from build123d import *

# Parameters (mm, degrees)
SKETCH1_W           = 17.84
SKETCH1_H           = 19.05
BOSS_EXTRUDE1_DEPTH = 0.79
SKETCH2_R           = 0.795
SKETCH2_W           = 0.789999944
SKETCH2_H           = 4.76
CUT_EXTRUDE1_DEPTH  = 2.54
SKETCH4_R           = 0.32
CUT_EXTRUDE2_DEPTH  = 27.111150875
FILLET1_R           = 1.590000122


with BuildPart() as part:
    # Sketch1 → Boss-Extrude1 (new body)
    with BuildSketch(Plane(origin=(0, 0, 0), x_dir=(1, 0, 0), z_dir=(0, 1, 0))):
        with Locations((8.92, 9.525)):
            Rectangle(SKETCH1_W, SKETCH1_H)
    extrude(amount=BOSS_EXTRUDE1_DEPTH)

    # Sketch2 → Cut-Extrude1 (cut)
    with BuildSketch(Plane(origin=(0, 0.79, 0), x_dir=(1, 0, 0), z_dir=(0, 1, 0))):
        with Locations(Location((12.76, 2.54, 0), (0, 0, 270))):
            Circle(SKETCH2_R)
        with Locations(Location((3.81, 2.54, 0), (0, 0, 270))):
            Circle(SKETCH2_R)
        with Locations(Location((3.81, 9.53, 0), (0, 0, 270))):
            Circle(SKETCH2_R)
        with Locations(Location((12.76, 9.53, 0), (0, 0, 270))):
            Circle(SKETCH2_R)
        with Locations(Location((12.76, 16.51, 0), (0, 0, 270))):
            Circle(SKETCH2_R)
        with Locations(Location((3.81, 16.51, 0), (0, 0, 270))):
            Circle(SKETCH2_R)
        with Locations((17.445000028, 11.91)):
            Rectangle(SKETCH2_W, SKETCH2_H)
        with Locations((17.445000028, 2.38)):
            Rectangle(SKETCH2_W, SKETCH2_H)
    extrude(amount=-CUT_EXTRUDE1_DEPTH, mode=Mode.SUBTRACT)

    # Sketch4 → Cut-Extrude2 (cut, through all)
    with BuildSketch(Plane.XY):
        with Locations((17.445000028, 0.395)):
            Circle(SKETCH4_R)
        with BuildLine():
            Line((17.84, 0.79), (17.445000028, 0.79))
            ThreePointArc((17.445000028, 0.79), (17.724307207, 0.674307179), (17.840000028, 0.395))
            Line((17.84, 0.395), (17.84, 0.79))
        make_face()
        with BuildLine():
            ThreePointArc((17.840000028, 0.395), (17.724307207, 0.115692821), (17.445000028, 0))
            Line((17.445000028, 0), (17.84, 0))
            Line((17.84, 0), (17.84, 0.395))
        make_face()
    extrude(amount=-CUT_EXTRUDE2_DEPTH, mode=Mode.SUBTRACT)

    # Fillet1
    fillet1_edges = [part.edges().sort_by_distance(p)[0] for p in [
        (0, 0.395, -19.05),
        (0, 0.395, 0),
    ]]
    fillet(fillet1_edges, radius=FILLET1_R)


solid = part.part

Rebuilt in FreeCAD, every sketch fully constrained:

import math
import FreeCAD as App
import Part
import Sketcher
from FreeCAD import Vector
Q = App.Units.Quantity


def edges_at(feature, points):
    """Names of the edges that pass closest to the given points."""
    edges = feature.Shape.Edges
    near = lambda p: min(range(len(edges)), key=lambda i: edges[i].distToShape(Part.Vertex(*p))[0])
    return sorted({f"Edge{near(p) + 1}" for p in points})

doc = App.newDocument("Part")
body = doc.addObject("PartDesign::Body", "Body")

sketch1 = body.newObject("Sketcher::SketchObject", "Sketch")
sketch1.AttachmentSupport = (doc.getObject("XZ_Plane"), [""])
sketch1.MapMode = "FlatFace"
sketch1.addGeometry(Part.LineSegment(Vector(0, -19, 0), Vector(0, 0, 0)), False)
sketch1.addGeometry(Part.LineSegment(Vector(0, 0, 0), Vector(18, 0, 0)), False)
sketch1.addGeometry(Part.LineSegment(Vector(18, 0, 0), Vector(18, -19, 0)), False)
sketch1.addGeometry(Part.LineSegment(Vector(18, -19, 0), Vector(0, -19, 0)), False)
sketch1.addConstraint(Sketcher.Constraint("Coincident", 0, 2, 1, 1))
sketch1.addConstraint(Sketcher.Constraint("Coincident", 1, 2, 2, 1))
sketch1.addConstraint(Sketcher.Constraint("Coincident", 2, 2, 3, 1))
sketch1.addConstraint(Sketcher.Constraint("Coincident", 3, 2, 0, 1))
sketch1.addConstraint(Sketcher.Constraint("Vertical", 0))
sketch1.addConstraint(Sketcher.Constraint("Horizontal", 1))
sketch1.addConstraint(Sketcher.Constraint("Vertical", 2))
sketch1.addConstraint(Sketcher.Constraint("Horizontal", 3))
sketch1.addConstraint(Sketcher.Constraint("Coincident", 0, 2, -1, 1))
sketch1.addConstraint(Sketcher.Constraint("DistanceY", 0, 1, 0, 2, Q("0.75 in")))
sketch1.addConstraint(Sketcher.Constraint("DistanceX", 1, 1, 1, 2, Q("17.84 mm")))
pad1 = body.newObject("PartDesign::Pad", "Pad")
pad1.Profile = sketch1
pad1.Length = 0.79
pad1.Reversed = True

sketch2 = body.newObject("Sketcher::SketchObject", "Sketch001")
sketch2.AttachmentSupport = (doc.getObject("XZ_Plane"), [""])
sketch2.MapMode = "FlatFace"
sketch2.AttachmentOffset = App.Placement(Vector(0, 0, -0.79), App.Rotation())
sketch2.addGeometry(Part.Circle(Vector(12.8, -2.5, 0), Vector(0, 0, 1), 0.8), False)
sketch2.addGeometry(Part.Circle(Vector(3.8, -2.5, 0), Vector(0, 0, 1), 0.8), False)
sketch2.addGeometry(Part.Circle(Vector(3.8, -9.5, 0), Vector(0, 0, 1), 0.8), False)
sketch2.addGeometry(Part.Circle(Vector(12.8, -9.5, 0), Vector(0, 0, 1), 0.8), False)
sketch2.addGeometry(Part.Circle(Vector(12.8, -16.5, 0), Vector(0, 0, 1), 0.8), False)
sketch2.addGeometry(Part.Circle(Vector(3.8, -16.5, 0), Vector(0, 0, 1), 0.8), False)
sketch2.addGeometry(Part.LineSegment(Vector(17.1, -14.3, 0), Vector(17.1, -9.5, 0)), False)
sketch2.addGeometry(Part.LineSegment(Vector(17.1, -9.5, 0), Vector(17.8, -9.5, 0)), False)
sketch2.addGeometry(Part.LineSegment(Vector(17.8, -9.5, 0), Vector(17.8, -14.3, 0)), False)
sketch2.addGeometry(Part.LineSegment(Vector(17.8, -14.3, 0), Vector(17.1, -14.3, 0)), False)
sketch2.addGeometry(Part.LineSegment(Vector(17.1, -4.8, 0), Vector(17.1, 0, 0)), False)
sketch2.addGeometry(Part.LineSegment(Vector(17.1, 0, 0), Vector(17.8, 0, 0)), False)
sketch2.addGeometry(Part.LineSegment(Vector(17.8, 0, 0), Vector(17.8, -4.8, 0)), False)
sketch2.addGeometry(Part.LineSegment(Vector(17.8, -4.8, 0), Vector(17.1, -4.8, 0)), False)
sketch2.addConstraint(Sketcher.Constraint("Coincident", 6, 2, 7, 1))
sketch2.addConstraint(Sketcher.Constraint("Coincident", 7, 2, 8, 1))
sketch2.addConstraint(Sketcher.Constraint("Coincident", 8, 2, 9, 1))
sketch2.addConstraint(Sketcher.Constraint("Coincident", 9, 2, 6, 1))
sketch2.addConstraint(Sketcher.Constraint("Coincident", 10, 2, 11, 1))
sketch2.addConstraint(Sketcher.Constraint("Coincident", 11, 2, 12, 1))
sketch2.addConstraint(Sketcher.Constraint("Coincident", 12, 2, 13, 1))
sketch2.addConstraint(Sketcher.Constraint("Coincident", 13, 2, 10, 1))
sketch2.addConstraint(Sketcher.Constraint("Vertical", 6))
sketch2.addConstraint(Sketcher.Constraint("Horizontal", 7))
sketch2.addConstraint(Sketcher.Constraint("Vertical", 8))
sketch2.addConstraint(Sketcher.Constraint("Horizontal", 9))
sketch2.addConstraint(Sketcher.Constraint("Vertical", 10))
sketch2.addConstraint(Sketcher.Constraint("Horizontal", 11))
sketch2.addConstraint(Sketcher.Constraint("Vertical", 12))
sketch2.addConstraint(Sketcher.Constraint("Horizontal", 13))
sketch2.addConstraint(Sketcher.Constraint("Equal", 0, 1))
sketch2.addConstraint(Sketcher.Constraint("Equal", 1, 2))
sketch2.addConstraint(Sketcher.Constraint("Equal", 2, 3))
sketch2.addConstraint(Sketcher.Constraint("Equal", 3, 4))
sketch2.addConstraint(Sketcher.Constraint("Equal", 4, 5))
sketch2.addConstraint(Sketcher.Constraint("PointOnObject", 10, 2, -1))
sketch2.addConstraint(Sketcher.Constraint("Horizontal", 0, 3, 1, 3))
sketch2.addConstraint(Sketcher.Constraint("Horizontal", 2, 3, 3, 3))
sketch2.addConstraint(Sketcher.Constraint("Horizontal", 4, 3, 5, 3))
sketch2.addConstraint(Sketcher.Constraint("Horizontal", 3, 3, 6, 2))
sketch2.addConstraint(Sketcher.Constraint("Vertical", 1, 3, 2, 3))
sketch2.addConstraint(Sketcher.Constraint("Vertical", 0, 3, 3, 3))
sketch2.addConstraint(Sketcher.Constraint("Vertical", 3, 3, 4, 3))
sketch2.addConstraint(Sketcher.Constraint("Vertical", 2, 3, 5, 3))
sketch2.addConstraint(Sketcher.Constraint("Vertical", 9, 2, 10, 2))
sketch2.addConstraint(Sketcher.Constraint("Vertical", 8, 2, 11, 2))
sketch2.addConstraint(Sketcher.Constraint("Equal", 8, 10))
sketch2.addConstraint(Sketcher.Constraint("DistanceY", 0, 3, -1, 1, Q("0.1 in")))
sketch2.addConstraint(Sketcher.Constraint("DistanceX", 3, 3, 7, 2, Q("0.2 in")))
sketch2.addConstraint(Sketcher.Constraint("Diameter", 0, Q("1.59 mm")))
sketch2.addConstraint(Sketcher.Constraint("DistanceX", -1, 1, 1, 3, Q("0.15 in")))
sketch2.addConstraint(Sketcher.Constraint("DistanceY", 4, 3, -1, 1, Q("0.65 in")))
sketch2.addConstraint(Sketcher.Constraint("DistanceX", 7, 1, 7, 2, Q("0.79 mm")))
sketch2.addConstraint(Sketcher.Constraint("DistanceY", 6, 1, 6, 2, Q("4.76 mm")))
sketch2.addConstraint(Sketcher.Constraint("DistanceX", -1, 1, 0, 3, Q("12.76 mm")))
sketch2.addConstraint(Sketcher.Constraint("DistanceY", 2, 3, -1, 1, Q("9.53 mm")))
pocket1 = body.newObject("PartDesign::Pocket", "Pocket")
pocket1.Profile = sketch2
pocket1.Length = Q("0.1 in")
pocket1.Reversed = True

sketch3 = body.newObject("Sketcher::SketchObject", "Sketch002")
sketch3.AttachmentSupport = (doc.getObject("XY_Plane"), [""])
sketch3.MapMode = "FlatFace"
sketch3.addGeometry(Part.Circle(Vector(17.45, 0.4, 0), Vector(0, 0, 1), 0.32), False)
sketch3.addGeometry(Part.LineSegment(Vector(17.84, 0.79, 0), Vector(17.45, 0.79, 0)), False)
sketch3.addGeometry(Part.ArcOfCircle(Part.Circle(Vector(17.45, 0.4, 0), Vector(0, 0, 1), 0.39), math.radians(0), math.radians(90)), False)
sketch3.addGeometry(Part.LineSegment(Vector(17.84, 0.4, 0), Vector(17.84, 0.79, 0)), False)
sketch3.addGeometry(Part.ArcOfCircle(Part.Circle(Vector(17.45, 0.39, 0), Vector(0, 0, 1), 0.39), math.radians(-90), math.radians(0)), False)
sketch3.addGeometry(Part.LineSegment(Vector(17.45, 0, 0), Vector(17.84, 0, 0)), False)
sketch3.addGeometry(Part.LineSegment(Vector(17.84, 0, 0), Vector(17.84, 0.4, 0)), False)
sketch3.addConstraint(Sketcher.Constraint("Tangent", 1, 2, 2, 2))
sketch3.addConstraint(Sketcher.Constraint("Tangent", 2, 1, 3, 1))
sketch3.addConstraint(Sketcher.Constraint("Coincident", 3, 2, 1, 1))
sketch3.addConstraint(Sketcher.Constraint("Tangent", 4, 1, 5, 1))
sketch3.addConstraint(Sketcher.Constraint("Coincident", 5, 2, 6, 1))
sketch3.addConstraint(Sketcher.Constraint("Tangent", 6, 2, 4, 2))
sketch3.addConstraint(Sketcher.Constraint("Horizontal", 1))
sketch3.addConstraint(Sketcher.Constraint("Vertical", 3))
sketch3.addConstraint(Sketcher.Constraint("Horizontal", 5))
sketch3.addConstraint(Sketcher.Constraint("Vertical", 6))
sketch3.addConstraint(Sketcher.Constraint("Coincident", 2, 3, 0, 3))
sketch3.addConstraint(Sketcher.Constraint("Coincident", 4, 3, 0, 3))
sketch3.addConstraint(Sketcher.Constraint("Equal", 2, 4))
sketch3.addConstraint(Sketcher.Constraint("PointOnObject", 4, 1, -1))
sketch3.addConstraint(Sketcher.Constraint("Diameter", 0, Q("0.64 mm")))
sketch3.addConstraint(Sketcher.Constraint("Radius", 2, Q("0.395 mm")))
sketch3.addConstraint(Sketcher.Constraint("DistanceX", -1, 1, 0, 3, Q("17.445 mm")))
pocket2 = body.newObject("PartDesign::Pocket", "Pocket001")
pocket2.Profile = sketch3
pocket2.Type = "ThroughAll"
doc.recompute()

fillet = body.newObject("PartDesign::Fillet", "Fillet")
fillet.Base = (pocket2, edges_at(pocket2, [(0, 0.395, -19.05), (0, 0.395, 0)]))
fillet.Radius = 1.59

doc.recompute()
